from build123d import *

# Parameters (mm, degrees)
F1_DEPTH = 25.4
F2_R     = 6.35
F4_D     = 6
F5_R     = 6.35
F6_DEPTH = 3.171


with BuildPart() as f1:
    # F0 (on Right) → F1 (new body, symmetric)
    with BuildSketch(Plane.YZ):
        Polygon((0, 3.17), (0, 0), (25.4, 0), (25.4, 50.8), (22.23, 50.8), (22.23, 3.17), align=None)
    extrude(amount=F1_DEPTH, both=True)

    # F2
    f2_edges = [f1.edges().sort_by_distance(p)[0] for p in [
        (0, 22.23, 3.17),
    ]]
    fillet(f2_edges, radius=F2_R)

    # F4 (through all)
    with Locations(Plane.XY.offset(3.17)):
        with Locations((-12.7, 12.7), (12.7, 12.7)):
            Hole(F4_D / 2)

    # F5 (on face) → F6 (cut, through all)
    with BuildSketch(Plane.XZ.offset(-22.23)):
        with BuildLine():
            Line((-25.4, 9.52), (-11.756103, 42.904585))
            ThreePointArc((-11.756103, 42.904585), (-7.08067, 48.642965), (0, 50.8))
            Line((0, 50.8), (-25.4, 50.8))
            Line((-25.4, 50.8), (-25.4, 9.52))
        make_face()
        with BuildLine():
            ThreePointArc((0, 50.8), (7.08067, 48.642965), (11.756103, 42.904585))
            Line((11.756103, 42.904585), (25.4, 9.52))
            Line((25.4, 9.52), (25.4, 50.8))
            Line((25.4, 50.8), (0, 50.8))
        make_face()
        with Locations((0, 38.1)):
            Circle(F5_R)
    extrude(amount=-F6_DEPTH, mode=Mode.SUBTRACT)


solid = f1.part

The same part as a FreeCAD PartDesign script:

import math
import FreeCAD as App
import Part
import Sketcher
Q = App.Units.Quantity


def edges_at(feature, points):
    """Names of the edges that pass closest to the given points."""
    edges = feature.Shape.Edges
    near = lambda p: min(range(len(edges)), key=lambda i: edges[i].distToShape(Part.Vertex(*p))[0])
    return sorted({f"Edge{near(p) + 1}" for p in points})

doc = App.newDocument("Part")
body = doc.addObject("PartDesign::Body", "Body")

# Sketch on YZ plane
sketch1 = body.newObject("Sketcher::SketchObject", "Sketch")
sketch1.AttachmentSupport = (doc.getObject("YZ_Plane"), [""])
sketch1.MapMode = "FlatFace"
sketch1.addGeometry(Part.LineSegment(App.Vector(0, 3.17, 0), App.Vector(0, 0, 0)), False)
sketch1.addGeometry(Part.LineSegment(App.Vector(0, 0, 0), App.Vector(25.4, 0, 0)), False)
sketch1.addGeometry(Part.LineSegment(App.Vector(25.4, 0, 0), App.Vector(25.4, 50.8, 0)), False)
sketch1.addGeometry(Part.LineSegment(App.Vector(25.4, 50.8, 0), App.Vector(22.23, 50.8, 0)), False)
sketch1.addGeometry(Part.LineSegment(App.Vector(22.23, 50.8, 0), App.Vector(22.23, 3.17, 0)), False)
sketch1.addGeometry(Part.LineSegment(App.Vector(22.23, 3.17, 0), App.Vector(0, 3.17, 0)), False)
sketch1.addConstraint(Sketcher.Constraint("Coincident", 0, 2, 1, 1))
sketch1.addConstraint(Sketcher.Constraint("Coincident", 1, 2, 2, 1))
sketch1.addConstraint(Sketcher.Constraint("Coincident", 2, 2, 3, 1))
sketch1.addConstraint(Sketcher.Constraint("Coincident", 3, 2, 4, 1))
sketch1.addConstraint(Sketcher.Constraint("Coincident", 4, 2, 5, 1))
sketch1.addConstraint(Sketcher.Constraint("Coincident", 5, 2, 0, 1))
sketch1.addConstraint(Sketcher.Constraint("Vertical", 0))
sketch1.addConstraint(Sketcher.Constraint("Horizontal", 1))
sketch1.addConstraint(Sketcher.Constraint("Vertical", 2))
sketch1.addConstraint(Sketcher.Constraint("Horizontal", 3))
sketch1.addConstraint(Sketcher.Constraint("Vertical", 4))
sketch1.addConstraint(Sketcher.Constraint("Horizontal", 5))
sketch1.addConstraint(Sketcher.Constraint("Coincident", 0, 2, -1, 1))
sketch1.addConstraint(Sketcher.Constraint("Equal", 3, 0))
sketch1.addConstraint(Sketcher.Constraint("DistanceX", 1, 1, 1, 2, Q("1 in")))
sketch1.addConstraint(Sketcher.Constraint("DistanceY", 2, 1, 2, 2, Q("2 in")))
sketch1.addConstraint(Sketcher.Constraint("DistanceX", 3, 2, 3, 1, Q("3.17 mm")))
pad1 = body.newObject("PartDesign::Pad", "Pad")
pad1.Profile = sketch1
pad1.Length = Q("2 in")
pad1.Midplane = True
doc.recompute()

fillet = body.newObject("PartDesign::Fillet", "Fillet")
fillet.Base = (pad1, edges_at(pad1, [(0, 22.23, 3.17)]))
fillet.Radius = Q("0.25 in")

# Sketch on XY plane
sketch2 = body.newObject("Sketcher::SketchObject", "Sketch001")
sketch2.AttachmentSupport = (doc.getObject("XY_Plane"), [""])
sketch2.MapMode = "FlatFace"
sketch2.AttachmentOffset = App.Placement(App.Vector(0, 0, 3.17), App.Rotation())
sketch2.addGeometry(Part.Circle(App.Vector(-12.7, 12.7, 0), App.Vector(0, 0, 1), 3), False)
sketch2.addGeometry(Part.Circle(App.Vector(12.7, 12.7, 0), App.Vector(0, 0, 1), 3), False)
sketch2.addConstraint(Sketcher.Constraint("Equal", 0, 1))
sketch2.addConstraint(Sketcher.Constraint("Symmetric", 0, 3, 1, 3, -2))
sketch2.addConstraint(Sketcher.Constraint("DistanceX", 0, 3, 1, 3, Q("1 in")))
sketch2.addConstraint(Sketcher.Constraint("DistanceY", -1, 1, 0, 3, Q("0.5 in")))
sketch2.addConstraint(Sketcher.Constraint("Diameter", 0, Q("6 mm")))
doc.recompute()
hole = body.newObject("PartDesign::Hole", "Hole")
hole.Profile = sketch2
hole.ThreadType = "None"
hole.Diameter = 6
hole.DepthType = "ThroughAll"

# Sketch on XZ plane
sketch3 = body.newObject("Sketcher::SketchObject", "Sketch002")
sketch3.AttachmentSupport = (doc.getObject("XZ_Plane"), [""])
sketch3.MapMode = "FlatFace"
sketch3.AttachmentOffset = App.Placement(App.Vector(0, 0, -22.23), App.Rotation())
sketch3.addGeometry(Part.LineSegment(App.Vector(-25.4, 9.52, 0), App.Vector(-11.756103, 42.904585, 0)), False)
sketch3.addGeometry(Part.ArcOfCircle(Part.Circle(App.Vector(0, 38.1, 0), App.Vector(0, 0, 1), 12.7), math.radians(90), math.radians(157.770728)), False)
sketch3.addGeometry(Part.LineSegment(App.Vector(0, 50.8, 0), App.Vector(-25.4, 50.8, 0)), False)
sketch3.addGeometry(Part.LineSegment(App.Vector(-25.4, 50.8, 0), App.Vector(-25.4, 9.52, 0)), False)
sketch3.addGeometry(Part.ArcOfCircle(Part.Circle(App.Vector(0, 38.1, 0), App.Vector(0, 0, 1), 12.7), math.radians(22.229272), math.radians(90)), False)
sketch3.addGeometry(Part.LineSegment(App.Vector(11.756103, 42.904585, 0), App.Vector(25.4, 9.52, 0)), False)
sketch3.addGeometry(Part.LineSegment(App.Vector(25.4, 9.52, 0), App.Vector(25.4, 50.8, 0)), False)
sketch3.addGeometry(Part.LineSegment(App.Vector(25.4, 50.8, 0), App.Vector(0, 50.8, 0)), False)
sketch3.addGeometry(Part.Circle(App.Vector(0, 38.1, 0), App.Vector(0, 0, 1), 6.35), False)
sketch3.addConstraint(Sketcher.Constraint("Tangent", 0, 2, 1, 2))
sketch3.addConstraint(Sketcher.Constraint("Tangent", 1, 1, 2, 1))
sketch3.addConstraint(Sketcher.Constraint("Coincident", 2, 2, 3, 1))
sketch3.addConstraint(Sketcher.Constraint("Coincident", 3, 2, 0, 1))
sketch3.addConstraint(Sketcher.Constraint("Tangent", 4, 1, 5, 1))
sketch3.addConstraint(Sketcher.Constraint("Coincident", 5, 2, 6, 1))
sketch3.addConstraint(Sketcher.Constraint("Coincident", 6, 2, 7, 1))
sketch3.addConstraint(Sketcher.Constraint("Tangent", 7, 2, 4, 2))
sketch3.addConstraint(Sketcher.Constraint("Horizontal", 2))
sketch3.addConstraint(Sketcher.Constraint("Vertical", 3))
sketch3.addConstraint(Sketcher.Constraint("Vertical", 6))
sketch3.addConstraint(Sketcher.Constraint("Horizontal", 7))
sketch3.addConstraint(Sketcher.Constraint("Coincident", 4, 3, 1, 3))
sketch3.addConstraint(Sketcher.Constraint("Coincident", 8, 3, 1, 3))
sketch3.addConstraint(Sketcher.Constraint("Equal", 1, 4))
sketch3.addConstraint(Sketcher.Constraint("Symmetric", 0, 2, 4, 1, -2))
sketch3.addConstraint(Sketcher.Constraint("Horizontal", 3, 2, 5, 2))
sketch3.addConstraint(Sketcher.Constraint("Diameter", 8, Q("0.5 in")))
sketch3.addConstraint(Sketcher.Constraint("Radius", 1, Q("0.5 in")))
sketch3.addConstraint(Sketcher.Constraint("DistanceX", 2, 2, 2, 1, Q("1 in")))
sketch3.addConstraint(Sketcher.Constraint("DistanceY", -1, 1, 1, 1, Q("2 in")))
sketch3.addConstraint(Sketcher.Constraint("DistanceY", 3, 2, 3, 1, Q("41.28 mm")))
pocket1 = body.newObject("PartDesign::Pocket", "Pocket")
pocket1.Profile = sketch3
pocket1.Type = "ThroughAll"

doc.recompute()
